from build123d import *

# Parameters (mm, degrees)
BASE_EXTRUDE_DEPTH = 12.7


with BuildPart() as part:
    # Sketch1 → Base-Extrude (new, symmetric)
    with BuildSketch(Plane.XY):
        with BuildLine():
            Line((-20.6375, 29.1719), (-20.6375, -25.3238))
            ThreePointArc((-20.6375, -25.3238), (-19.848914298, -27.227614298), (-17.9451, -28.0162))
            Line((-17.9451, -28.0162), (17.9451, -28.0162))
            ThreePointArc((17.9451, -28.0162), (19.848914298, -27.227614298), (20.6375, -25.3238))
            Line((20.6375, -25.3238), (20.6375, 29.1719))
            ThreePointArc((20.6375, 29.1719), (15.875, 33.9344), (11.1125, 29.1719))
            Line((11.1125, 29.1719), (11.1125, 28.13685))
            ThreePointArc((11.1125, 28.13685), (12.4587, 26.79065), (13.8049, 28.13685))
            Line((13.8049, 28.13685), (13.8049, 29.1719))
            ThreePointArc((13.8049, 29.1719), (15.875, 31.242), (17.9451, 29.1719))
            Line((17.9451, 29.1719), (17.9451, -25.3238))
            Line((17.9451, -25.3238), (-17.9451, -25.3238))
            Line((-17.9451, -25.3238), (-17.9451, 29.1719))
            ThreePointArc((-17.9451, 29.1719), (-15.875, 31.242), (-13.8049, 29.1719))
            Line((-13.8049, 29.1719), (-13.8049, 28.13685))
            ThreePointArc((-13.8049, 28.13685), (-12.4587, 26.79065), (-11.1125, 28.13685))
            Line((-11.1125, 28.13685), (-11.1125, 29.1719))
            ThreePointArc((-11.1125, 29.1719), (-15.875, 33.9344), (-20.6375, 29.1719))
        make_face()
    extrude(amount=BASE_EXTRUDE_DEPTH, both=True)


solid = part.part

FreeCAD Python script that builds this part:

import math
import FreeCAD as App
import Part
import Sketcher
from FreeCAD import Vector
Q = App.Units.Quantity

doc = App.newDocument("Part")
body = doc.addObject("PartDesign::Body", "Body")

# Sketch on XY plane
sketch1 = doc.addObject("Sketcher::SketchObject", "Sketch")
body.addObject(sketch1)
sketch1.AttachmentSupport = (doc.XY_Plane, [""])
sketch1.MapMode = "FlatFace"
sketch1.addGeometry([
    Part.LineSegment(Vector(-20.6375, 29.1719, 0), Vector(-20.6375, -25.3238, 0)),  # 0
    Part.ArcOfCircle(Part.Circle(Vector(-17.9451, -25.3238, 0), Vector(0, 0, 1), 2.6924), math.radians(180), math.radians(270)),  # 1
    Part.LineSegment(Vector(-17.9451, -28.0162, 0), Vector(17.9451, -28.0162, 0)),  # 2
    Part.ArcOfCircle(Part.Circle(Vector(17.9451, -25.3238, 0), Vector(0, 0, 1), 2.6924), math.radians(-90), math.radians(0)),  # 3
    Part.LineSegment(Vector(20.6375, -25.3238, 0), Vector(20.6375, 29.1719, 0)),  # 4
    Part.ArcOfCircle(Part.Circle(Vector(15.875, 29.1719, 0), Vector(0, 0, 1), 4.7625), math.radians(0), math.radians(180)),  # 5
    Part.LineSegment(Vector(11.1125, 29.1719, 0), Vector(11.1125, 28.13685, 0)),  # 6
    Part.ArcOfCircle(Part.Circle(Vector(12.4587, 28.13685, 0), Vector(0, 0, 1), 1.3462), math.radians(180), math.radians(360)),  # 7
    Part.LineSegment(Vector(13.8049, 28.13685, 0), Vector(13.8049, 29.1719, 0)),  # 8
    Part.ArcOfCircle(Part.Circle(Vector(15.875, 29.1719, 0), Vector(0, 0, 1), 2.0701), math.radians(0), math.radians(180)),  # 9
    Part.LineSegment(Vector(17.9451, 29.1719, 0), Vector(17.9451, -25.3238, 0)),  # 10
    Part.LineSegment(Vector(17.9451, -25.3238, 0), Vector(-17.9451, -25.3238, 0)),  # 11
    Part.LineSegment(Vector(-17.9451, -25.3238, 0), Vector(-17.9451, 29.1719, 0)),  # 12
    Part.ArcOfCircle(Part.Circle(Vector(-15.875, 29.1719, 0), Vector(0, 0, 1), 2.0701), math.radians(0), math.radians(180)),  # 13
    Part.LineSegment(Vector(-13.8049, 29.1719, 0), Vector(-13.8049, 28.13685, 0)),  # 14
    Part.ArcOfCircle(Part.Circle(Vector(-12.4587, 28.13685, 0), Vector(0, 0, 1), 1.3462), math.radians(180), math.radians(360)),  # 15
    Part.LineSegment(Vector(-11.1125, 28.13685, 0), Vector(-11.1125, 29.1719, 0)),  # 16
    Part.ArcOfCircle(Part.Circle(Vector(-15.875, 29.1719, 0), Vector(0, 0, 1), 4.7625), math.radians(0), math.radians(180)),  # 17
], False)
sketch1.addConstraint([
    Sketcher.Constraint("Tangent", 0, 2, 1, 1),
    Sketcher.Constraint("Tangent", 1, 2, 2, 1),
    Sketcher.Constraint("Tangent", 2, 2, 3, 1),
    Sketcher.Constraint("Tangent", 3, 2, 4, 1),
    Sketcher.Constraint("Tangent", 4, 2, 5, 1),
    Sketcher.Constraint("Tangent", 5, 2, 6, 1),
    Sketcher.Constraint("Tangent", 6, 2, 7, 1),
    Sketcher.Constraint("Tangent", 7, 2, 8, 1),
    Sketcher.Constraint("Tangent", 8, 2, 9, 2),
    Sketcher.Constraint("Tangent", 9, 1, 10, 1),
    Sketcher.Constraint("Coincident", 10, 2, 11, 1),
    Sketcher.Constraint("Coincident", 11, 2, 12, 1),
    Sketcher.Constraint("Tangent", 12, 2, 13, 2),
    Sketcher.Constraint("Tangent", 13, 1, 14, 1),
    Sketcher.Constraint("Tangent", 14, 2, 15, 1),
    Sketcher.Constraint("Tangent", 15, 2, 16, 1),
    Sketcher.Constraint("Tangent", 16, 2, 17, 1),
    Sketcher.Constraint("Tangent", 17, 2, 0, 1),
    Sketcher.Constraint("Vertical", 0),
    Sketcher.Constraint("Horizontal", 2),
    Sketcher.Constraint("Vertical", 4),
    Sketcher.Constraint("Vertical", 6),
    Sketcher.Constraint("Vertical", 8),
    Sketcher.Constraint("Vertical", 10),
    Sketcher.Constraint("Horizontal", 11),
    Sketcher.Constraint("Vertical", 12),
    Sketcher.Constraint("Vertical", 14),
    Sketcher.Constraint("Vertical", 16),
    Sketcher.Constraint("Coincident", 9, 3, 5, 3),
    Sketcher.Constraint("Coincident", 17, 3, 13, 3),
    Sketcher.Constraint("Coincident", 10, 2, 3, 3),
    Sketcher.Constraint("Coincident", 11, 2, 1, 3),
    Sketcher.Constraint("Equal", 9, 13),
    Sketcher.Constraint("Symmetric", 5, 3, 13, 3, -2),
    Sketcher.Constraint("Horizontal", 7, 3, 15, 3),
    Sketcher.Constraint("Radius", 1, Q("0.106 in")),
    Sketcher.Constraint("Radius", 5, Q("0.1875 in")),
    Sketcher.Constraint("DistanceX", 2, 1, 2, 2, Q("1.413 in")),
    Sketcher.Constraint("DistanceY", 0, 2, 0, 1, Q("2.1455 in")),
    Sketcher.Constraint("DistanceY", 1, 3, -1, 1, Q("0.997 in")),
    Sketcher.Constraint("DistanceY", 6, 2, 6, 1, Q("1.03505 mm")),
])
pad1 = doc.addObject("PartDesign::Pad", "Pad")
body.addObject(pad1)
pad1.Profile = sketch1
pad1.Length = Q("1 in")
pad1.Midplane = True

doc.recompute()
